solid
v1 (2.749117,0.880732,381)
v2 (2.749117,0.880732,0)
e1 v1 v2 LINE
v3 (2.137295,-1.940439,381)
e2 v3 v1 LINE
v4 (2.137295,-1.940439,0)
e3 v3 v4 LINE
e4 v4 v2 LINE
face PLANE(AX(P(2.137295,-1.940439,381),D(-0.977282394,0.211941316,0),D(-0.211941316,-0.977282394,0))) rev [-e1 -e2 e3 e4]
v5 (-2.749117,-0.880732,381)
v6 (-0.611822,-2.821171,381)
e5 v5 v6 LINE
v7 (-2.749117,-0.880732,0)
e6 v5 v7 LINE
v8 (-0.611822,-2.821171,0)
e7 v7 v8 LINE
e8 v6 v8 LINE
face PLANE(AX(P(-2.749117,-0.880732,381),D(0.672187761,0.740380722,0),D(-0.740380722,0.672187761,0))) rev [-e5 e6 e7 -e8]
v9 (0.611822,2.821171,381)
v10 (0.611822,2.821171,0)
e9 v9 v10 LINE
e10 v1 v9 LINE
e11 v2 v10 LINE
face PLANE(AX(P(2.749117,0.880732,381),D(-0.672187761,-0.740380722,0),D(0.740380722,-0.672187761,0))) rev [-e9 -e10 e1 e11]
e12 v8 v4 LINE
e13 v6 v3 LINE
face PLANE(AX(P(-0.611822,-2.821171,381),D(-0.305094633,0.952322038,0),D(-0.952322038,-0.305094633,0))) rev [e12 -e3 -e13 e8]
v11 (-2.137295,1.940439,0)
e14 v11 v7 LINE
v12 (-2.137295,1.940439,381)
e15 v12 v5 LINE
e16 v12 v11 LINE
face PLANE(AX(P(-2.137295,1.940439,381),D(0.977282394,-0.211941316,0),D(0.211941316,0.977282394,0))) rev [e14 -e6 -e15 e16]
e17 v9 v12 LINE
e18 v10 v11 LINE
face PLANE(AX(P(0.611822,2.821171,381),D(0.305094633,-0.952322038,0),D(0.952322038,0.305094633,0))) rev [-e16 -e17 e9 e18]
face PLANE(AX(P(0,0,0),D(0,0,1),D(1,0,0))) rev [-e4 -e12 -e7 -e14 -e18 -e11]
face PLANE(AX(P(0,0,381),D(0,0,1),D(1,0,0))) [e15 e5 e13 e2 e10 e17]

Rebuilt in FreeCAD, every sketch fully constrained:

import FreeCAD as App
import Part
import Sketcher
from FreeCAD import Vector
Q = App.Units.Quantity

doc = App.newDocument("Part")
body = doc.addObject("PartDesign::Body", "Body")

# Sketch on XY plane
sketch1 = body.newObject("Sketcher::SketchObject", "Sketch")
sketch1.AttachmentSupport = (doc.getObject("XY_Plane"), [""])
sketch1.MapMode = "FlatFace"
sketch1.addGeometry(Part.LineSegment(Vector(2.1, -1.9, 0), Vector(2.7, 0.9, 0)), False)
sketch1.addGeometry(Part.LineSegment(Vector(2.7, 0.9, 0), Vector(0.6, 2.8, 0)), False)
sketch1.addGeometry(Part.LineSegment(Vector(0.6, 2.8, 0), Vector(-2.1, 1.9, 0)), False)
sketch1.addGeometry(Part.LineSegment(Vector(-2.1, 1.9, 0), Vector(-2.7, -0.9, 0)), False)
sketch1.addGeometry(Part.LineSegment(Vector(-2.7, -0.9, 0), Vector(-0.6, -2.8, 0)), False)
sketch1.addGeometry(Part.LineSegment(Vector(-0.6, -2.8, 0), Vector(2.1, -1.9, 0)), False)
sketch1.addConstraint(Sketcher.Constraint("Coincident", 0, 2, 1, 1))
sketch1.addConstraint(Sketcher.Constraint("Coincident", 1, 2, 2, 1))
sketch1.addConstraint(Sketcher.Constraint("Coincident", 2, 2, 3, 1))
sketch1.addConstraint(Sketcher.Constraint("Coincident", 3, 2, 4, 1))
sketch1.addConstraint(Sketcher.Constraint("Coincident", 4, 2, 5, 1))
sketch1.addConstraint(Sketcher.Constraint("Coincident", 5, 2, 0, 1))
sketch1.addConstraint(Sketcher.Constraint("Symmetric", 0, 2, 3, 2, -1, 1))
sketch1.addConstraint(Sketcher.Constraint("Symmetric", 1, 2, 4, 2, -1, 1))
sketch1.addConstraint(Sketcher.Constraint("Symmetric", 2, 2, 5, 2, -1, 1))
sketch1.addConstraint(Sketcher.Constraint("Equal", 0, 1))
sketch1.addConstraint(Sketcher.Constraint("Equal", 1, 2))
sketch1.addConstraint(Sketcher.Constraint("Distance", 0, Q("2.886751 mm")))
sketch1.addConstraint(Sketcher.Constraint("DistanceX", -1, 1, 1, 2, Q("0.611822 mm")))
sketch1.addConstraint(Sketcher.Constraint("DistanceY", -1, 1, 1, 2, Q("2.821171 mm")))
sketch1.addConstraint(Sketcher.Constraint("DistanceY", -1, 1, 2, 2, Q("1.940439 mm")))
pad1 = body.newObject("PartDesign::Pad", "Pad")
pad1.Profile = sketch1
pad1.Length = Q("15 in")

doc.recompute()
